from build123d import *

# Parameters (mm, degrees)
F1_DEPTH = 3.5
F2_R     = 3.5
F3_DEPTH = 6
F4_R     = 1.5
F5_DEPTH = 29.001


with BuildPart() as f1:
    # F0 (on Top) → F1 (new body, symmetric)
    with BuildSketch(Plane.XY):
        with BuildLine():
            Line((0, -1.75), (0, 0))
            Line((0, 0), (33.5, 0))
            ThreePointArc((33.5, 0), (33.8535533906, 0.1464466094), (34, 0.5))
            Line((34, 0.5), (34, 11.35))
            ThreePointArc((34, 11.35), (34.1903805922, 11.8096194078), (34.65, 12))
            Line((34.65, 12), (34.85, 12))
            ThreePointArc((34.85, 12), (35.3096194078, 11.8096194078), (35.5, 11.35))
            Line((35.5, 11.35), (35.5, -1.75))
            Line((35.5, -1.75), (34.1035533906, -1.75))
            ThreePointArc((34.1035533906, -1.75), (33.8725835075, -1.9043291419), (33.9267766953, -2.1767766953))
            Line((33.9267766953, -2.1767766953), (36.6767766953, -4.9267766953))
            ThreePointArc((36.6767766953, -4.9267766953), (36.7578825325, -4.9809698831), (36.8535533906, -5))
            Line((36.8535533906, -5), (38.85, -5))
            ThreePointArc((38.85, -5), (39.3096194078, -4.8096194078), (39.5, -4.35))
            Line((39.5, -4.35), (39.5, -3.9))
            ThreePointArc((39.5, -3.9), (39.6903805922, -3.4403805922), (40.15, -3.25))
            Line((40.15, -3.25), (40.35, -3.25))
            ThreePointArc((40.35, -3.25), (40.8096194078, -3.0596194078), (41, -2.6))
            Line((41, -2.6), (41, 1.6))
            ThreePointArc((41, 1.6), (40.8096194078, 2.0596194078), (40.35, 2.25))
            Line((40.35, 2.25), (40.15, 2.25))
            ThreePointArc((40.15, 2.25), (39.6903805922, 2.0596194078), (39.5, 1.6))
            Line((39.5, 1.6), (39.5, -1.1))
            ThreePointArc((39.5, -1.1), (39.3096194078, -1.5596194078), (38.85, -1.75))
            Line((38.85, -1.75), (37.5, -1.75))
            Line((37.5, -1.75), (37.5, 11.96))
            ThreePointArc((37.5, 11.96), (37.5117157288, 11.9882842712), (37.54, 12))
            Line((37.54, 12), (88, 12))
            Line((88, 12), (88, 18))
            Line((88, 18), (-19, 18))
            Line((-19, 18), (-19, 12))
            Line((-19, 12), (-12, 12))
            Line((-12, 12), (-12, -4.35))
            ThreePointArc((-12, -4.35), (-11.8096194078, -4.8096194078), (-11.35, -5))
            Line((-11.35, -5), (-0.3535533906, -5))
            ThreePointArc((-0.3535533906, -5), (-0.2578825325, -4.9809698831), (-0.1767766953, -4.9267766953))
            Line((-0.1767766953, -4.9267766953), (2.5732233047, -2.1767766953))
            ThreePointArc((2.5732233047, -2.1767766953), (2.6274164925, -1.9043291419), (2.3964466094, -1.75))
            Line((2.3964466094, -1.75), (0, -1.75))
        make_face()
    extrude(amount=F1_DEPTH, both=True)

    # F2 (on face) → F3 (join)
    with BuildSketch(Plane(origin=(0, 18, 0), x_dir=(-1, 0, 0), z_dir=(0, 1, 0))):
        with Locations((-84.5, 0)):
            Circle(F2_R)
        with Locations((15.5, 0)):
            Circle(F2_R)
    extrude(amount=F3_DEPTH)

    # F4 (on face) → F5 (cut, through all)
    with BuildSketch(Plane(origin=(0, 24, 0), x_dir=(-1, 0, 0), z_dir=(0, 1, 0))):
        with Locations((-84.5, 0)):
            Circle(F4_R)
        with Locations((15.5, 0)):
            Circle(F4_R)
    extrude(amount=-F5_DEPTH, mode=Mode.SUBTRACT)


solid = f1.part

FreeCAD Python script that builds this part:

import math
import FreeCAD as App
import Part
import Sketcher
from FreeCAD import Vector

doc = App.newDocument("Part")
params = doc.addObject("Spreadsheet::Sheet", "Params")
for row, (alias, value) in enumerate([
    ("sketch1_radius", "0.5 mm"),
    ("sketch1_width", "107 mm"),
    ("sketch1_width2", "7 mm"),
    ("sketch1_height", "6 mm"),
    ("sketch1_radius2", "0.65 mm"),
    ("pad1_length", "7 mm"),
    ("sketch2_diameter", "7 mm"),
    ("pad2_length", "6 mm"),
    ("sketch3_diameter", "3 mm"),
], start=1):
    params.set(f"A{row}", alias)
    params.set(f"B{row}", "=" + value)
    params.setAlias(f"B{row}", alias)

body = doc.addObject("PartDesign::Body", "Body")

# Sketch on XY plane
sketch1 = doc.addObject("Sketcher::SketchObject", "Sketch")
body.addObject(sketch1)
sketch1.AttachmentSupport = (doc.XY_Plane, [""])
sketch1.MapMode = "FlatFace"
sketch1.addGeometry([
    Part.LineSegment(Vector(0, -1.75, 0), Vector(0, 0, 0)),  # 0
    Part.LineSegment(Vector(0, 0, 0), Vector(33.5, 0, 0)),  # 1
    Part.ArcOfCircle(Part.Circle(Vector(33.5, 0.5, 0), Vector(0, 0, 1), 0.5), math.radians(-90), math.radians(0)),  # 2
    Part.LineSegment(Vector(34, 0.5, 0), Vector(34, 11.35, 0)),  # 3
    Part.ArcOfCircle(Part.Circle(Vector(34.65, 11.35, 0), Vector(0, 0, 1), 0.65), math.radians(90), math.radians(180)),  # 4
    Part.LineSegment(Vector(34.65, 12, 0), Vector(34.85, 12, 0)),  # 5
    Part.ArcOfCircle(Part.Circle(Vector(34.85, 11.35, 0), Vector(0, 0, 1), 0.65), math.radians(0), math.radians(90)),  # 6
    Part.LineSegment(Vector(35.5, 11.35, 0), Vector(35.5, -1.75, 0)),  # 7
    Part.LineSegment(Vector(35.5, -1.75, 0), Vector(34.103553, -1.75, 0)),  # 8
    Part.ArcOfCircle(Part.Circle(Vector(34.103553, -2, 0), Vector(0, 0, 1), 0.25), math.radians(90), math.radians(225)),  # 9
    Part.LineSegment(Vector(33.926777, -2.176777, 0), Vector(36.676777, -4.926777, 0)),  # 10
    Part.ArcOfCircle(Part.Circle(Vector(36.853553, -4.75, 0), Vector(0, 0, 1), 0.25), math.radians(-135), math.radians(-90)),  # 11
    Part.LineSegment(Vector(36.853553, -5, 0), Vector(38.85, -5, 0)),  # 12
    Part.ArcOfCircle(Part.Circle(Vector(38.85, -4.35, 0), Vector(0, 0, 1), 0.65), math.radians(-90), math.radians(0)),  # 13
    Part.LineSegment(Vector(39.5, -4.35, 0), Vector(39.5, -3.9, 0)),  # 14
    Part.ArcOfCircle(Part.Circle(Vector(40.15, -3.9, 0), Vector(0, 0, 1), 0.65), math.radians(90), math.radians(180)),  # 15
    Part.LineSegment(Vector(40.15, -3.25, 0), Vector(40.35, -3.25, 0)),  # 16
    Part.ArcOfCircle(Part.Circle(Vector(40.35, -2.6, 0), Vector(0, 0, 1), 0.65), math.radians(-90), math.radians(0)),  # 17
    Part.LineSegment(Vector(41, -2.6, 0), Vector(41, 1.6, 0)),  # 18
    Part.ArcOfCircle(Part.Circle(Vector(40.35, 1.6, 0), Vector(0, 0, 1), 0.65), math.radians(0), math.radians(90)),  # 19
    Part.LineSegment(Vector(40.35, 2.25, 0), Vector(40.15, 2.25, 0)),  # 20
    Part.ArcOfCircle(Part.Circle(Vector(40.15, 1.6, 0), Vector(0, 0, 1), 0.65), math.radians(90), math.radians(180)),  # 21
    Part.LineSegment(Vector(39.5, 1.6, 0), Vector(39.5, -1.1, 0)),  # 22
    Part.ArcOfCircle(Part.Circle(Vector(38.85, -1.1, 0), Vector(0, 0, 1), 0.65), math.radians(-90), math.radians(0)),  # 23
    Part.LineSegment(Vector(38.85, -1.75, 0), Vector(37.5, -1.75, 0)),  # 24
    Part.LineSegment(Vector(37.5, -1.75, 0), Vector(37.5, 11.96, 0)),  # 25
    Part.ArcOfCircle(Part.Circle(Vector(37.54, 11.96, 0), Vector(0, 0, 1), 0.04), math.radians(90), math.radians(180)),  # 26
    Part.LineSegment(Vector(37.54, 12, 0), Vector(88, 12, 0)),  # 27
    Part.LineSegment(Vector(88, 12, 0), Vector(88, 18, 0)),  # 28
    Part.LineSegment(Vector(88, 18, 0), Vector(-19, 18, 0)),  # 29
    Part.LineSegment(Vector(-19, 18, 0), Vector(-19, 12, 0)),  # 30
    Part.LineSegment(Vector(-19, 12, 0), Vector(-12, 12, 0)),  # 31
    Part.LineSegment(Vector(-12, 12, 0), Vector(-12, -4.35, 0)),  # 32
    Part.ArcOfCircle(Part.Circle(Vector(-11.35, -4.35, 0), Vector(0, 0, 1), 0.65), math.radians(180), math.radians(270)),  # 33
    Part.LineSegment(Vector(-11.35, -5, 0), Vector(-0.353553, -5, 0)),  # 34
    Part.ArcOfCircle(Part.Circle(Vector(-0.353553, -4.75, 0), Vector(0, 0, 1), 0.25), math.radians(-90), math.radians(-45)),  # 35
    Part.LineSegment(Vector(-0.176777, -4.926777, 0), Vector(2.573223, -2.176777, 0)),  # 36
    Part.ArcOfCircle(Part.Circle(Vector(2.396447, -2, 0), Vector(0, 0, 1), 0.25), math.radians(-45), math.radians(90)),  # 37
    Part.LineSegment(Vector(2.396447, -1.75, 0), Vector(0, -1.75, 0)),  # 38
], False)
sketch1.addConstraint([
    Sketcher.Constraint("Coincident", 0, 2, 1, 1),
    Sketcher.Constraint("Tangent", 1, 2, 2, 1),
    Sketcher.Constraint("Tangent", 2, 2, 3, 1),
    Sketcher.Constraint("Tangent", 3, 2, 4, 2),
    Sketcher.Constraint("Tangent", 4, 1, 5, 1),
    Sketcher.Constraint("Tangent", 5, 2, 6, 2),
    Sketcher.Constraint("Tangent", 6, 1, 7, 1),
    Sketcher.Constraint("Coincident", 7, 2, 8, 1),
    Sketcher.Constraint("Tangent", 8, 2, 9, 1),
    Sketcher.Constraint("Tangent", 9, 2, 10, 1),
    Sketcher.Constraint("Tangent", 10, 2, 11, 1),
    Sketcher.Constraint("Tangent", 11, 2, 12, 1),
    Sketcher.Constraint("Tangent", 12, 2, 13, 1),
    Sketcher.Constraint("Tangent", 13, 2, 14, 1),
    Sketcher.Constraint("Tangent", 14, 2, 15, 2),
    Sketcher.Constraint("Tangent", 15, 1, 16, 1),
    Sketcher.Constraint("Tangent", 16, 2, 17, 1),
    Sketcher.Constraint("Tangent", 17, 2, 18, 1),
    Sketcher.Constraint("Tangent", 18, 2, 19, 1),
    Sketcher.Constraint("Tangent", 19, 2, 20, 1),
    Sketcher.Constraint("Tangent", 20, 2, 21, 1),
    Sketcher.Constraint("Tangent", 21, 2, 22, 1),
    Sketcher.Constraint("Tangent", 22, 2, 23, 2),
    Sketcher.Constraint("Tangent", 23, 1, 24, 1),
    Sketcher.Constraint("Coincident", 24, 2, 25, 1),
    Sketcher.Constraint("Tangent", 25, 2, 26, 2),
    Sketcher.Constraint("Tangent", 26, 1, 27, 1),
    Sketcher.Constraint("Coincident", 27, 2, 28, 1),
    Sketcher.Constraint("Coincident", 28, 2, 29, 1),
    Sketcher.Constraint("Coincident", 29, 2, 30, 1),
    Sketcher.Constraint("Coincident", 30, 2, 31, 1),
    Sketcher.Constraint("Coincident", 31, 2, 32, 1),
    Sketcher.Constraint("Tangent", 32, 2, 33, 1),
    Sketcher.Constraint("Tangent", 33, 2, 34, 1),
    Sketcher.Constraint("Tangent", 34, 2, 35, 1),
    Sketcher.Constraint("Tangent", 35, 2, 36, 1),
    Sketcher.Constraint("Tangent", 36, 2, 37, 1),
    Sketcher.Constraint("Tangent", 37, 2, 38, 1),
    Sketcher.Constraint("Coincident", 38, 2, 0, 1),
    Sketcher.Constraint("Vertical", 0),
    Sketcher.Constraint("Horizontal", 1),
    Sketcher.Constraint("Vertical", 3),
    Sketcher.Constraint("Horizontal", 5),
    Sketcher.Constraint("Vertical", 7),
    Sketcher.Constraint("Horizontal", 8),
    Sketcher.Constraint("Horizontal", 12),
    Sketcher.Constraint("Vertical", 14),
    Sketcher.Constraint("Horizontal", 16),
    Sketcher.Constraint("Vertical", 18),
    Sketcher.Constraint("Horizontal", 20),
    Sketcher.Constraint("Vertical", 22),
    Sketcher.Constraint("Horizontal", 24),
    Sketcher.Constraint("Vertical", 25),
    Sketcher.Constraint("Horizontal", 27),
    Sketcher.Constraint("Vertical", 28),
    Sketcher.Constraint("Horizontal", 29),
    Sketcher.Constraint("Vertical", 30),
    Sketcher.Constraint("Horizontal", 31),
    Sketcher.Constraint("Vertical", 32),
    Sketcher.Constraint("Horizontal", 34),
    Sketcher.Constraint("Horizontal", 38),
    Sketcher.Constraint("Coincident", 0, 2, -1, 1),
    Sketcher.Constraint("Equal", 4, 6),
    Sketcher.Constraint("Equal", 9, 11),
    Sketcher.Constraint("Equal", 6, 13),
    Sketcher.Constraint("Equal", 13, 15),
    Sketcher.Constraint("Equal", 15, 17),
    Sketcher.Constraint("Equal", 17, 19),
    Sketcher.Constraint("Equal", 19, 21),
    Sketcher.Constraint("Equal", 21, 23),
    Sketcher.Constraint("Equal", 23, 33),
    Sketcher.Constraint("Equal", 11, 35),
    Sketcher.Constraint("Equal", 35, 37),
    Sketcher.Constraint("Perpendicular", 10, 36),
    Sketcher.Constraint("Horizontal", 13, 3, 33, 3),
    Sketcher.Constraint("Horizontal", 9, 3, 37, 3),
    Sketcher.Constraint("Horizontal", 8, 2, 23, 1),
    Sketcher.Constraint("Horizontal", 5, 2, 26, 1),
    Sketcher.Constraint("Horizontal", 27, 2, 30, 2),
    Sketcher.Constraint("Horizontal", 10, 2, 35, 2),
    Sketcher.Constraint("Vertical", 15, 3, 21, 3),
    Sketcher.Constraint("Equal", 5, 16),
    Sketcher.Constraint("Radius", 2, 0.5),
    Sketcher.Constraint("DistanceX", 29, 2, 29, 1, 107.0),
    Sketcher.Constraint("DistanceX", 31, 1, 31, 2, 7.0),
    Sketcher.Constraint("DistanceY", 28, 1, 28, 2, 6.0),
    Sketcher.Constraint("Radius", 4, 0.65),
    Sketcher.Constraint("Radius", 9, 0.25),
    Sketcher.Constraint("Radius", 26, 0.04),
    Sketcher.Constraint("DistanceX", 1, 1, 1, 2, 33.5),
    Sketcher.Constraint("DistanceX", 5, 1, 5, 2, 0.2),
    Sketcher.Constraint("DistanceY", 7, 2, 7, 1, 13.1),
    Sketcher.Constraint("DistanceY", 18, 1, 18, 2, 4.2),
    Sketcher.Constraint("DistanceY", 22, 2, 22, 1, 2.7),
    Sketcher.Constraint("DistanceY", 9, 3, -1, 1, 2.0),
    Sketcher.Constraint("DistanceY", 11, 2, -1, 1, 5.0),
    Sketcher.Constraint("DistanceX", -1, 1, 17, 2, 41.0),
    Sketcher.Constraint("DistanceX", -1, 1, 27, 2, 88.0),
    Sketcher.Constraint("DistanceX", 7, 2, 24, 2, 2.0),
    Sketcher.Constraint("DistanceX", 8, 2, 8, 1, 1.396447),
    Sketcher.Constraint("DistanceX", 34, 1, 34, 2, 10.996447),
])
sketch1.setExpression("Constraints[82]", "Params.sketch1_radius")
sketch1.setExpression("Constraints[83]", "Params.sketch1_width")
sketch1.setExpression("Constraints[84]", "Params.sketch1_width2")
sketch1.setExpression("Constraints[85]", "Params.sketch1_height")
sketch1.setExpression("Constraints[86]", "Params.sketch1_radius2")
pad1 = doc.addObject("PartDesign::Pad", "Pad")
body.addObject(pad1)
pad1.Profile = sketch1
pad1.setExpression("Length", "Params.pad1_length")
pad1.Midplane = True

# Sketch on XZ plane
sketch2 = doc.addObject("Sketcher::SketchObject", "Sketch001")
body.addObject(sketch2)
sketch2.AttachmentSupport = (doc.XZ_Plane, [""])
sketch2.MapMode = "FlatFace"
sketch2.AttachmentOffset = App.Placement(Vector(0, 0, -18), App.Rotation())
sketch2.addGeometry([
    Part.Circle(Vector(84.5, 0, 0), Vector(0, 0, 1), 3.5),
    Part.Circle(Vector(-15.5, 0, 0), Vector(0, 0, 1), 3.5),
], False)
sketch2.addConstraint([
    Sketcher.Constraint("Equal", 0, 1),
    Sketcher.Constraint("PointOnObject", 0, 3, -1),
    Sketcher.Constraint("PointOnObject", 1, 3, -1),
    Sketcher.Constraint("Diameter", 0, 7.0),
    Sketcher.Constraint("DistanceX", 1, 3, 0, 3, 100.0),
    Sketcher.Constraint("DistanceX", -1, 1, 0, 3, 84.5),
])
sketch2.setExpression("Constraints[3]", "Params.sketch2_diameter")
pad2 = doc.addObject("PartDesign::Pad", "Pad001")
body.addObject(pad2)
pad2.Profile = sketch2
pad2.setExpression("Length", "Params.pad2_length")
pad2.Reversed = True

# Sketch on XZ plane
sketch3 = doc.addObject("Sketcher::SketchObject", "Sketch002")
body.addObject(sketch3)
sketch3.AttachmentSupport = (doc.XZ_Plane, [""])
sketch3.MapMode = "FlatFace"
sketch3.AttachmentOffset = App.Placement(Vector(0, 0, -24), App.Rotation())
sketch3.addGeometry([
    Part.Circle(Vector(84.5, 0, 0), Vector(0, 0, 1), 1.5),
    Part.Circle(Vector(-15.5, 0, 0), Vector(0, 0, 1), 1.5),
], False)
sketch3.addConstraint([
    Sketcher.Constraint("Equal", 0, 1),
    Sketcher.Constraint("PointOnObject", 0, 3, -1),
    Sketcher.Constraint("PointOnObject", 1, 3, -1),
    Sketcher.Constraint("Diameter", 0, 3.0),
    Sketcher.Constraint("DistanceX", 1, 3, 0, 3, 100.0),
    Sketcher.Constraint("DistanceX", -1, 1, 0, 3, 84.5),
])
sketch3.setExpression("Constraints[3]", "Params.sketch3_diameter")
pocket1 = doc.addObject("PartDesign::Pocket", "Pocket")
body.addObject(pocket1)
pocket1.Profile = sketch3
pocket1.Type = "ThroughAll"
pocket1.Reversed = True

doc.recompute()
